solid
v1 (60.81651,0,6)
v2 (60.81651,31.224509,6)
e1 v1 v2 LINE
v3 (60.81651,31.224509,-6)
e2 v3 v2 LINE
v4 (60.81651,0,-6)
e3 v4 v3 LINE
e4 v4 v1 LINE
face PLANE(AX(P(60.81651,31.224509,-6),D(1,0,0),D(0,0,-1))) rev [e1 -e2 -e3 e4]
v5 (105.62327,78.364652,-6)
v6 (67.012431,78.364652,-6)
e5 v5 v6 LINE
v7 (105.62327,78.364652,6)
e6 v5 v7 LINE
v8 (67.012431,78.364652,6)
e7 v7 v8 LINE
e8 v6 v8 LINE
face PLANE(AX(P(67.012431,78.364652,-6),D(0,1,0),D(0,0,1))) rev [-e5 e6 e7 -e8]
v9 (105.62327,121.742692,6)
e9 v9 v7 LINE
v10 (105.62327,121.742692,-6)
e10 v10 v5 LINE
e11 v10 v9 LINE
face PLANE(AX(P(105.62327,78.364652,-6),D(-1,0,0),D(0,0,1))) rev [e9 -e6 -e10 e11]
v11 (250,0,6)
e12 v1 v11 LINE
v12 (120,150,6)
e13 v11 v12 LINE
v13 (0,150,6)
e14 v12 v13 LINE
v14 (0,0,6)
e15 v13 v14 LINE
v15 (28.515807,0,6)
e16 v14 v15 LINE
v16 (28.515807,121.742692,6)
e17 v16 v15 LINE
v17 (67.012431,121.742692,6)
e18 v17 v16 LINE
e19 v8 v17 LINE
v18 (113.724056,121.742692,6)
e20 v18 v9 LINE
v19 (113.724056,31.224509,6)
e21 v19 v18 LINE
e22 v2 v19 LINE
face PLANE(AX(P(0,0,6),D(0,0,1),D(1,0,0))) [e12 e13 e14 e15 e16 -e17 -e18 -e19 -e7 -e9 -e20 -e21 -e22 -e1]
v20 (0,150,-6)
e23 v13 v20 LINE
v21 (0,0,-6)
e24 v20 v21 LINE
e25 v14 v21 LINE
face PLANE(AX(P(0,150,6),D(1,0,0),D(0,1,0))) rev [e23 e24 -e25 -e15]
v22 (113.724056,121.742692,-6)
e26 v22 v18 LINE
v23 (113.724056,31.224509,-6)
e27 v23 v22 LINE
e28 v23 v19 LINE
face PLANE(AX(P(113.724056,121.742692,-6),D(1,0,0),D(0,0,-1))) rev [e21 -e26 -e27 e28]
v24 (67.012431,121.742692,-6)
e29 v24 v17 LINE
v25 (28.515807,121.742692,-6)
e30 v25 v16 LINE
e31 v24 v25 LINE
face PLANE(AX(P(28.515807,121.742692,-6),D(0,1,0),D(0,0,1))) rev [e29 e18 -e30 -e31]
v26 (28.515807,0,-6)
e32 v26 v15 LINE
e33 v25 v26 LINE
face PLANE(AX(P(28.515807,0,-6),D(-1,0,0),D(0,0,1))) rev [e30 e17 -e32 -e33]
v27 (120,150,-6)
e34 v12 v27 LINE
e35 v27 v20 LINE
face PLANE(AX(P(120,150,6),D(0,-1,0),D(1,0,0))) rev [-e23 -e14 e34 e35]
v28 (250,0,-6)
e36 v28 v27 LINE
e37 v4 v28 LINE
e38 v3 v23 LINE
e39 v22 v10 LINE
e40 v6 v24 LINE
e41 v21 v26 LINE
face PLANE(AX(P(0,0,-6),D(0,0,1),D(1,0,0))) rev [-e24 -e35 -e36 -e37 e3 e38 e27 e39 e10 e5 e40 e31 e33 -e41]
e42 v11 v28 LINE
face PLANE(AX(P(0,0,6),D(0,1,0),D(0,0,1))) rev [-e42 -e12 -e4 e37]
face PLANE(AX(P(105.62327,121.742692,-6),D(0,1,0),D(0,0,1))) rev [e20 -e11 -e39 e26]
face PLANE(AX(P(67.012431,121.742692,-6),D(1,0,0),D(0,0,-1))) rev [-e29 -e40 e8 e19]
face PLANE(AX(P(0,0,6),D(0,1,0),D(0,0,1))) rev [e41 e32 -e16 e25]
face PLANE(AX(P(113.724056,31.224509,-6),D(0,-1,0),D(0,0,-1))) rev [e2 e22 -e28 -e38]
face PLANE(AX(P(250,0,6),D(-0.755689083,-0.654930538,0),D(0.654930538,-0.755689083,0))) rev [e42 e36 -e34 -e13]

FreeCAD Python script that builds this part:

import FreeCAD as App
import Part
import Sketcher
from FreeCAD import Vector


def add_polygon(sketch, points):
    """Adds a closed chain of lines whose ends are joined by coincident constraints."""
    first, n = sketch.GeometryCount, len(points)
    for a, b in zip(points, points[1:] + points[:1]):
        sketch.addGeometry(Part.LineSegment(App.Vector(*a, 0), App.Vector(*b, 0)), False)
    for i in range(n):
        sketch.addConstraint(Sketcher.Constraint("Coincident", first + i, 2, first + (i + 1) % n, 1))

doc = App.newDocument("Part")
body = doc.addObject("PartDesign::Body", "Body")

# Sketch on XY plane
sketch1 = body.newObject("Sketcher::SketchObject", "Sketch")
sketch1.AttachmentSupport = (doc.getObject("XY_Plane"), [""])
sketch1.MapMode = "FlatFace"
add_polygon(sketch1, [(0, 0), (250, 0), (120, 150), (0, 150)])  # lines 0-3
sketch1.addConstraint([
    Sketcher.Constraint("Horizontal", 0),
    Sketcher.Constraint("Horizontal", 2),
    Sketcher.Constraint("Vertical", 3),
    Sketcher.Constraint("Coincident", 3, 2, -1, 1),
    Sketcher.Constraint("DistanceX", 0, 1, 0, 2, 250.0),
    Sketcher.Constraint("DistanceX", 2, 2, 2, 1, 120.0),
    Sketcher.Constraint("DistanceY", 3, 2, 3, 1, 150.0),
])
pad1 = body.newObject("PartDesign::Pad", "Pad")
pad1.Profile = sketch1
pad1.Type = "TwoLengths"
pad1.Length = 6
pad1.Length2 = 6

# Sketch on XY plane
sketch2 = body.newObject("Sketcher::SketchObject", "Sketch001")
sketch2.AttachmentSupport = (doc.getObject("XY_Plane"), [""])
sketch2.MapMode = "FlatFace"
sketch2.AttachmentOffset = App.Placement(Vector(0, 0, 6), App.Rotation())
add_polygon(sketch2, [(29, 122), (29, 0), (61, 0), (61, 31), (114, 31), (114, 122), (106, 122), (106, 78), (67, 78), (67, 122)])  # lines 0-9
sketch2.addConstraint([
    Sketcher.Constraint("Vertical", 0),
    Sketcher.Constraint("Horizontal", 1),
    Sketcher.Constraint("Vertical", 2),
    Sketcher.Constraint("Horizontal", 3),
    Sketcher.Constraint("Vertical", 4),
    Sketcher.Constraint("Horizontal", 5),
    Sketcher.Constraint("Vertical", 6),
    Sketcher.Constraint("Horizontal", 7),
    Sketcher.Constraint("Vertical", 8),
    Sketcher.Constraint("Horizontal", 9),
    Sketcher.Constraint("PointOnObject", 0, 2, -1),
    Sketcher.Constraint("Horizontal", 5, 2, 8, 2),
    Sketcher.Constraint("DistanceX", 7, 2, 7, 1, 38.610839),
    Sketcher.Constraint("DistanceY", 0, 2, 0, 1, 121.742692),
    Sketcher.Constraint("DistanceY", 2, 1, 2, 2, 31.224509),
    Sketcher.Constraint("DistanceY", 6, 2, 6, 1, 43.37804),
    Sketcher.Constraint("DistanceX", 1, 1, 1, 2, 32.300703),
    Sketcher.Constraint("DistanceX", 3, 1, 3, 2, 52.907546),
    Sketcher.Constraint("DistanceX", 5, 2, 5, 1, 8.100786),
    Sketcher.Constraint("DistanceX", -1, 1, 1, 2, 60.81651),
])
pocket1 = body.newObject("PartDesign::Pocket", "Pocket")
pocket1.Profile = sketch2
pocket1.Type = "ThroughAll"

doc.recompute()
